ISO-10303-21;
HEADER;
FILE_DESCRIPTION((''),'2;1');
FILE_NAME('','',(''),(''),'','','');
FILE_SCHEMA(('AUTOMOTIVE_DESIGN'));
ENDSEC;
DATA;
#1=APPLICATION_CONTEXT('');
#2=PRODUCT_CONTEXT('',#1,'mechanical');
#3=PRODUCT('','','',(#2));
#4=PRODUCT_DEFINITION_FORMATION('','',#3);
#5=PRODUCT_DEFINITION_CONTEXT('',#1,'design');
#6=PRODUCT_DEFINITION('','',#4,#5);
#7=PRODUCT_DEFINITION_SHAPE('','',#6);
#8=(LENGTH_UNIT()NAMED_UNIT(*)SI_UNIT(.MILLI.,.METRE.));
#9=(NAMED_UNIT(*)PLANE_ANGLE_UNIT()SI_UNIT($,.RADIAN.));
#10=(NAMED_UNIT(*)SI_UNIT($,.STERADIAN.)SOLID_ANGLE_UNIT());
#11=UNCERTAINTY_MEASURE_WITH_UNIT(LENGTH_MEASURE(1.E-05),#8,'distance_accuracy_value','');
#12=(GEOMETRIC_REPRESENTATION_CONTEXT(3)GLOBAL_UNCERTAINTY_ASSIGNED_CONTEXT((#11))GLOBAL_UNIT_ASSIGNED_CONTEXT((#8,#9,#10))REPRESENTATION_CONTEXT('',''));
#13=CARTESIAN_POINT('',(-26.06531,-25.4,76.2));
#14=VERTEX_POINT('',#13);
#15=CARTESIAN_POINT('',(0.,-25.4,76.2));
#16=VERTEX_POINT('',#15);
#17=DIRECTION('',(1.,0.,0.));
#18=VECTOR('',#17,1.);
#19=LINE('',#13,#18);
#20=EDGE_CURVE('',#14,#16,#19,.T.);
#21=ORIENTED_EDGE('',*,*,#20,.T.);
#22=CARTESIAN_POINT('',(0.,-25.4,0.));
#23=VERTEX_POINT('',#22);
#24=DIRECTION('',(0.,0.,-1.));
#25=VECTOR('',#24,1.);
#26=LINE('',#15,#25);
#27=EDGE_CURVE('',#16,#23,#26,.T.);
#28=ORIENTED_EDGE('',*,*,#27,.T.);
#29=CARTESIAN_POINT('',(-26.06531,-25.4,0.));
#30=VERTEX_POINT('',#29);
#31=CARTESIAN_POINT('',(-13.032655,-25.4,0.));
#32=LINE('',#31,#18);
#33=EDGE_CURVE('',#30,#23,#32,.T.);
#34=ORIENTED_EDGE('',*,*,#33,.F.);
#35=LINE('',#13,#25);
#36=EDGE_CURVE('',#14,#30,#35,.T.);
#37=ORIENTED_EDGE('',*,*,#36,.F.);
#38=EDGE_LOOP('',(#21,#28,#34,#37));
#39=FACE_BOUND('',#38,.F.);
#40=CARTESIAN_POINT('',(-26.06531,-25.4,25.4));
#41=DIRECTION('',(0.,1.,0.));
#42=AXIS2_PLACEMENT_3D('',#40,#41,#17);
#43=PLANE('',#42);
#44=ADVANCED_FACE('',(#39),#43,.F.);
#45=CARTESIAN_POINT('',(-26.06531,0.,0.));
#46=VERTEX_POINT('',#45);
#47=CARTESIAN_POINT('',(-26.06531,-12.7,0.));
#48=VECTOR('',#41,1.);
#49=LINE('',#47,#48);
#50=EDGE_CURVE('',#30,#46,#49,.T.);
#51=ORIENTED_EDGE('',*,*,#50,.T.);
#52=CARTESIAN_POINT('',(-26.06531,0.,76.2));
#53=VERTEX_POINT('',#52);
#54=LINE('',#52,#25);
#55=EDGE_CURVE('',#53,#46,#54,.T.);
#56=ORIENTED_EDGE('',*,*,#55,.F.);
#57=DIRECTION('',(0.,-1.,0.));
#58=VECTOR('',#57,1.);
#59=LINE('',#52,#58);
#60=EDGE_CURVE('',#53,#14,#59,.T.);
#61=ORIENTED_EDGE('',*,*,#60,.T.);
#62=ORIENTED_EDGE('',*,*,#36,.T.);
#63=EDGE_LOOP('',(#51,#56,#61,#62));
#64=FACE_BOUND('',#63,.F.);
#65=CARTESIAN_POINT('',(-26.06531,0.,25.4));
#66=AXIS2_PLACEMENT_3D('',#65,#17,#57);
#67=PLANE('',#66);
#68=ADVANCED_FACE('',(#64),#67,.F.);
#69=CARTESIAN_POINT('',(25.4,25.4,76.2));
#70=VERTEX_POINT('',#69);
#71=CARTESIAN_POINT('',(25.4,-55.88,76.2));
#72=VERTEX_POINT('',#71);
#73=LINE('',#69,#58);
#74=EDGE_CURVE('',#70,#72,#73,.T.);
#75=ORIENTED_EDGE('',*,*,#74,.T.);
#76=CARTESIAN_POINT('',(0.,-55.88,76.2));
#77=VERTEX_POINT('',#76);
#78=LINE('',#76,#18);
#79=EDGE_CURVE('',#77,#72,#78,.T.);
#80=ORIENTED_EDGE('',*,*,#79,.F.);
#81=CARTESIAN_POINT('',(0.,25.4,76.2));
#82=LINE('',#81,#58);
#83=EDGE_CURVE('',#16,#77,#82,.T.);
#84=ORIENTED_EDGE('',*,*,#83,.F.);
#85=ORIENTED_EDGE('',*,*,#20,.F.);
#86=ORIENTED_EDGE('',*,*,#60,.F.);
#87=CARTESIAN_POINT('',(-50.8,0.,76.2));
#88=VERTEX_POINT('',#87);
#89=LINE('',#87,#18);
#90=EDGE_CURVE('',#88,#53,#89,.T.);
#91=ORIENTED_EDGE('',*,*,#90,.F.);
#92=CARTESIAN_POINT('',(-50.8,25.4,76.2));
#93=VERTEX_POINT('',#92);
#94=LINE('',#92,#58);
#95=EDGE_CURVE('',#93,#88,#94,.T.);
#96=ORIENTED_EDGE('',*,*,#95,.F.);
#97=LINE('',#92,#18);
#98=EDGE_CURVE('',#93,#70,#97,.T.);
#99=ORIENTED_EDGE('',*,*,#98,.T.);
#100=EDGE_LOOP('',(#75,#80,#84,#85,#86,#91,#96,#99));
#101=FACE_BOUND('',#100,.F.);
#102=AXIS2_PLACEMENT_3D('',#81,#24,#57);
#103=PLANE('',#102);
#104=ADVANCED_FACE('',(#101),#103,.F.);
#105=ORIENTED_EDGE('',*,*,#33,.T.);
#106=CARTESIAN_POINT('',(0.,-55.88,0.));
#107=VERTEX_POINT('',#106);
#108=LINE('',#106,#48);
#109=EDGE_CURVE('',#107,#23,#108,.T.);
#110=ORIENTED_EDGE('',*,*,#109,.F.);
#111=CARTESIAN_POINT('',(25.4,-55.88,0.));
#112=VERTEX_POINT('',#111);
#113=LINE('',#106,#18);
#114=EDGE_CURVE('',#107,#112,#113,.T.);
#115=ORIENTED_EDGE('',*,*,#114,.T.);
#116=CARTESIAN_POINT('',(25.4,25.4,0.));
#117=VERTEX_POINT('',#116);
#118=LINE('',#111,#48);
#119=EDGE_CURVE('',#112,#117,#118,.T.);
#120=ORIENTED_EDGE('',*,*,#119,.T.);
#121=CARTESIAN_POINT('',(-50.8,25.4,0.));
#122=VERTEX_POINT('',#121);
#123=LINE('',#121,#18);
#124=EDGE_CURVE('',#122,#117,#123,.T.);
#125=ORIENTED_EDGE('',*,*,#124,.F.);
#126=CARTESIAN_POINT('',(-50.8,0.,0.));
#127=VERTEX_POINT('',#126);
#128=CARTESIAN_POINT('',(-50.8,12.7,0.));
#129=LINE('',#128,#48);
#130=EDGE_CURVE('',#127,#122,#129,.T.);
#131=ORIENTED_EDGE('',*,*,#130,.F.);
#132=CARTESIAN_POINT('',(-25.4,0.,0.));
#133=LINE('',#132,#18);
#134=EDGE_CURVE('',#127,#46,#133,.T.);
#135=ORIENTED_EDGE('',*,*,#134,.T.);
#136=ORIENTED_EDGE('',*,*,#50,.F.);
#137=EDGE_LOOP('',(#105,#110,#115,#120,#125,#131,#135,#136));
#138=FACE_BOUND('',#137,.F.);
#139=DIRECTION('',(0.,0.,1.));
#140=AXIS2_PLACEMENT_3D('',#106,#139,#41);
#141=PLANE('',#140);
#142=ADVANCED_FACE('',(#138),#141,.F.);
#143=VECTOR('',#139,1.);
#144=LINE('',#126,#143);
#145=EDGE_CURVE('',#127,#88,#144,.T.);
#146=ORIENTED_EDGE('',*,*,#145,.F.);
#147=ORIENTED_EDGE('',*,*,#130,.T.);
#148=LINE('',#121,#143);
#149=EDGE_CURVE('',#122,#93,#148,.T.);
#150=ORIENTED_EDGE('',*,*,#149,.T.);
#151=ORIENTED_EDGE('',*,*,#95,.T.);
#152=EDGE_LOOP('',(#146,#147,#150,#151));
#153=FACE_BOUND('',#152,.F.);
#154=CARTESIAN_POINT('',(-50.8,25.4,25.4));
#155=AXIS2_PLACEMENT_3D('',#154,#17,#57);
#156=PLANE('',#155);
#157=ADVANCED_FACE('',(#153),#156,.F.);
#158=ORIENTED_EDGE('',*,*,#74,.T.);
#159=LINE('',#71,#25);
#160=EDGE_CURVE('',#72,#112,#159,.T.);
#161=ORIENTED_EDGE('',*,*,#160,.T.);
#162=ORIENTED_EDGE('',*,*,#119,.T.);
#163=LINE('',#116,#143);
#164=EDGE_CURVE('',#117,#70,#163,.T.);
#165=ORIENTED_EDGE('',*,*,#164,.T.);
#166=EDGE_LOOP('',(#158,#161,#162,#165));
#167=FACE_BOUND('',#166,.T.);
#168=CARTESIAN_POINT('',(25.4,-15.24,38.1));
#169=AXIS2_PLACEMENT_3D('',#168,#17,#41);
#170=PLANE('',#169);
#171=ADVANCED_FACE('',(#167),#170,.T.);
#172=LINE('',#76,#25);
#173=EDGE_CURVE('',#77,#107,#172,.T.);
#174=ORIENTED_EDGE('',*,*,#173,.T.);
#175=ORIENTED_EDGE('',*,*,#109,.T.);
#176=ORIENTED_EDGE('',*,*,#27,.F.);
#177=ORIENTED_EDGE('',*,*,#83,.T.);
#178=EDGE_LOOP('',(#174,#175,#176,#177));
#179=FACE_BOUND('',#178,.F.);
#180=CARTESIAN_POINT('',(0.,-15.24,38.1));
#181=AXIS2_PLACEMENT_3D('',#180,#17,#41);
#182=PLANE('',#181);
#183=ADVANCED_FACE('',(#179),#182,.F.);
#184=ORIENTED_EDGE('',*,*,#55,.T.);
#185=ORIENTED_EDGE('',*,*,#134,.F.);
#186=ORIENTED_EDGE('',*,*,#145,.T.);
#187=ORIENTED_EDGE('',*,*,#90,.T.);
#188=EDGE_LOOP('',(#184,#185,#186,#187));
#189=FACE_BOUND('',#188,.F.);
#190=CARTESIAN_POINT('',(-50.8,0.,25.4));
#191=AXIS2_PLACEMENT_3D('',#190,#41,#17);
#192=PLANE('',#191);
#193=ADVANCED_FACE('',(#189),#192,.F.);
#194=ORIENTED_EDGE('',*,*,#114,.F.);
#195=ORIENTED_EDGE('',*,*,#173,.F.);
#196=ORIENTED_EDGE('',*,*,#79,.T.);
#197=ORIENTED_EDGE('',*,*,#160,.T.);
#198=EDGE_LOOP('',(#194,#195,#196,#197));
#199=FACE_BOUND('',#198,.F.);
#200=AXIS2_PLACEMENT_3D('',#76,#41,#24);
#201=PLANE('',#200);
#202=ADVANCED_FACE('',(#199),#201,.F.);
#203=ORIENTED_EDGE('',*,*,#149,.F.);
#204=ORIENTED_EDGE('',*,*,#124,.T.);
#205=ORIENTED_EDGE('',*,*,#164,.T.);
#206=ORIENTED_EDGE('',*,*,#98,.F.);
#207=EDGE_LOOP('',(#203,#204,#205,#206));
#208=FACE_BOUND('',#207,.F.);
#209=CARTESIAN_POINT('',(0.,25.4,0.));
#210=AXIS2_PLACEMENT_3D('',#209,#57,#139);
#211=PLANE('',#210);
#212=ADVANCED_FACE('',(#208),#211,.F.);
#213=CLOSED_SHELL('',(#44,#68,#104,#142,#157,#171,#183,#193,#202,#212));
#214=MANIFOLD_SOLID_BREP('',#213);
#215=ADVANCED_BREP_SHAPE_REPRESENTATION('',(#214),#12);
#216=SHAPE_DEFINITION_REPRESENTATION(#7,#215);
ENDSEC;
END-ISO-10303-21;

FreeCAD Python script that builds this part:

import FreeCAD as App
import Part
import Sketcher

V = App.Vector
Q = App.Units.Quantity

doc = App.newDocument("Part")
params = doc.addObject("Spreadsheet::Sheet", "Params")
for row, (alias, value) in enumerate([
    ("sketch1_width", "2 in"),
    ("sketch1_height", "1 in"),
    ("pad1_length", "1 in"),
    ("sketch2_height", "1 in"),
    ("pad2_length", "1 in"),
    ("sketch3_width", "2 in"),
    ("pad3_length", "2 in"),
    ("sketch4_height", "3 in"),
    ("sketch4_width", "3.2 in"),
    ("pad4_length", "1 in"),
], start=1):
    params.set(f"A{row}", alias)
    params.set(f"B{row}", "=" + value)
    params.setAlias(f"B{row}", alias)

body = doc.addObject("PartDesign::Body", "Body")

# Sketch on XY plane
sketch1 = body.newObject("Sketcher::SketchObject", "Sketch")
sketch1.AttachmentSupport = (doc.getObject("XY_Plane"), [""])
sketch1.MapMode = "FlatFace"
sketch1.addGeometry([
    Part.LineSegment(V(-50.8, 25.4, 0), V(-50.8, 0, 0)),
    Part.LineSegment(V(-50.8, 0, 0), V(0, 0, 0)),
    Part.LineSegment(V(0, 0, 0), V(0, 25.4, 0)),
    Part.LineSegment(V(0, 25.4, 0), V(-50.8, 25.4, 0)),
], False)
sketch1.addConstraint([
    Sketcher.Constraint("Coincident", 0, 2, 1, 1),
    Sketcher.Constraint("Coincident", 1, 2, 2, 1),
    Sketcher.Constraint("Coincident", 2, 2, 3, 1),
    Sketcher.Constraint("Coincident", 3, 2, 0, 1),
    Sketcher.Constraint("Vertical", 0),
    Sketcher.Constraint("Horizontal", 1),
    Sketcher.Constraint("Vertical", 2),
    Sketcher.Constraint("Horizontal", 3),
    Sketcher.Constraint("Coincident", 1, 2, -1, 1),
    Sketcher.Constraint("DistanceX", 1, 1, 1, 2, Q("2 in")),
    Sketcher.Constraint("DistanceY", 0, 2, 0, 1, Q("1 in")),
])
sketch1.setExpression("Constraints[9]", "Params.sketch1_width")
sketch1.setExpression("Constraints[10]", "Params.sketch1_height")
pad1 = body.newObject("PartDesign::Pad", "Pad")
pad1.Profile = sketch1
pad1.setExpression("Length", "Params.pad1_length")

# Sketch on XY plane
sketch2 = body.newObject("Sketcher::SketchObject", "Sketch001")
sketch2.AttachmentSupport = (doc.getObject("XY_Plane"), [""])
sketch2.MapMode = "FlatFace"
sketch2.addGeometry([
    Part.LineSegment(V(-26.06531, 0, 0), V(-26.06531, -25.4, 0)),
    Part.LineSegment(V(-26.06531, -25.4, 0), V(0, -25.4, 0)),
    Part.LineSegment(V(0, -25.4, 0), V(0, 0, 0)),
    Part.LineSegment(V(0, 0, 0), V(-26.06531, 0, 0)),
], False)
sketch2.addConstraint([
    Sketcher.Constraint("Coincident", 0, 2, 1, 1),
    Sketcher.Constraint("Coincident", 1, 2, 2, 1),
    Sketcher.Constraint("Coincident", 2, 2, 3, 1),
    Sketcher.Constraint("Coincident", 3, 2, 0, 1),
    Sketcher.Constraint("Vertical", 0),
    Sketcher.Constraint("Horizontal", 1),
    Sketcher.Constraint("Vertical", 2),
    Sketcher.Constraint("Horizontal", 3),
    Sketcher.Constraint("Coincident", 2, 2, -1, 1),
    Sketcher.Constraint("DistanceY", 0, 2, 0, 1, Q("1 in")),
    Sketcher.Constraint("DistanceX", 1, 1, 1, 2, Q("26.06531 mm")),
])
sketch2.setExpression("Constraints[9]", "Params.sketch2_height")
pad2 = body.newObject("PartDesign::Pad", "Pad001")
pad2.Profile = sketch2
pad2.setExpression("Length", "Params.pad2_length")

# Sketch on XY plane
sketch3 = body.newObject("Sketcher::SketchObject", "Sketch002")
sketch3.AttachmentSupport = (doc.getObject("XY_Plane"), [""])
sketch3.MapMode = "FlatFace"
sketch3.AttachmentOffset = App.Placement(V(0, 0, 1 * 25.4), App.Rotation())
sketch3.addGeometry([
    Part.LineSegment(V(0, -25.4, 0), V(0, 25.4, 0)),  # 0
    Part.LineSegment(V(0, 25.4, 0), V(-50.8, 25.4, 0)),  # 1
    Part.LineSegment(V(-50.8, 25.4, 0), V(-50.8, 0, 0)),  # 2
    Part.LineSegment(V(-50.8, 0, 0), V(-26.06531, 0, 0)),  # 3
    Part.LineSegment(V(-26.06531, 0, 0), V(-26.06531, -25.4, 0)),  # 4
    Part.LineSegment(V(-26.06531, -25.4, 0), V(0, -25.4, 0)),  # 5
], False)
sketch3.addConstraint([
    Sketcher.Constraint("Coincident", 0, 2, 1, 1),
    Sketcher.Constraint("Coincident", 1, 2, 2, 1),
    Sketcher.Constraint("Coincident", 2, 2, 3, 1),
    Sketcher.Constraint("Coincident", 3, 2, 4, 1),
    Sketcher.Constraint("Coincident", 4, 2, 5, 1),
    Sketcher.Constraint("Coincident", 5, 2, 0, 1),
    Sketcher.Constraint("Vertical", 0),
    Sketcher.Constraint("Horizontal", 1),
    Sketcher.Constraint("Vertical", 2),
    Sketcher.Constraint("Horizontal", 3),
    Sketcher.Constraint("Vertical", 4),
    Sketcher.Constraint("Horizontal", 5),
    Sketcher.Constraint("Symmetric", 0, 2, 5, 2, -1, 1),
    Sketcher.Constraint("PointOnObject", 2, 2, -1),
    Sketcher.Constraint("Equal", 1, 0),
    Sketcher.Constraint("DistanceX", 1, 2, 1, 1, Q("2 in")),
    Sketcher.Constraint("DistanceX", 3, 1, 3, 2, Q("24.73469 mm")),
])
sketch3.setExpression("Constraints[15]", "Params.sketch3_width")
pad3 = body.newObject("PartDesign::Pad", "Pad002")
pad3.Profile = sketch3
pad3.setExpression("Length", "Params.pad3_length")

# Sketch on YZ plane
sketch4 = body.newObject("Sketcher::SketchObject", "Sketch003")
sketch4.AttachmentSupport = (doc.getObject("YZ_Plane"), [""])
sketch4.MapMode = "FlatFace"
sketch4.addGeometry([
    Part.LineSegment(V(-55.88, 0, 0), V(25.4, 0, 0)),
    Part.LineSegment(V(25.4, 0, 0), V(25.4, 76.2, 0)),
    Part.LineSegment(V(25.4, 76.2, 0), V(-55.88, 76.2, 0)),
    Part.LineSegment(V(-55.88, 76.2, 0), V(-55.88, 0, 0)),
], False)
sketch4.addConstraint([
    Sketcher.Constraint("Coincident", 0, 2, 1, 1),
    Sketcher.Constraint("Coincident", 1, 2, 2, 1),
    Sketcher.Constraint("Coincident", 2, 2, 3, 1),
    Sketcher.Constraint("Coincident", 3, 2, 0, 1),
    Sketcher.Constraint("Horizontal", 0),
    Sketcher.Constraint("Vertical", 1),
    Sketcher.Constraint("Horizontal", 2),
    Sketcher.Constraint("Vertical", 3),
    Sketcher.Constraint("PointOnObject", 0, 2, -1),
    Sketcher.Constraint("DistanceY", 1, 1, 1, 2, Q("3 in")),
    Sketcher.Constraint("DistanceX", 0, 1, 0, 2, Q("3.2 in")),
    Sketcher.Constraint("DistanceX", -1, 1, 0, 2, Q("1 in")),
])
sketch4.setExpression("Constraints[9]", "Params.sketch4_height")
sketch4.setExpression("Constraints[10]", "Params.sketch4_width")
pad4 = body.newObject("PartDesign::Pad", "Pad003")
pad4.Profile = sketch4
pad4.setExpression("Length", "Params.pad4_length")

doc.recompute()
